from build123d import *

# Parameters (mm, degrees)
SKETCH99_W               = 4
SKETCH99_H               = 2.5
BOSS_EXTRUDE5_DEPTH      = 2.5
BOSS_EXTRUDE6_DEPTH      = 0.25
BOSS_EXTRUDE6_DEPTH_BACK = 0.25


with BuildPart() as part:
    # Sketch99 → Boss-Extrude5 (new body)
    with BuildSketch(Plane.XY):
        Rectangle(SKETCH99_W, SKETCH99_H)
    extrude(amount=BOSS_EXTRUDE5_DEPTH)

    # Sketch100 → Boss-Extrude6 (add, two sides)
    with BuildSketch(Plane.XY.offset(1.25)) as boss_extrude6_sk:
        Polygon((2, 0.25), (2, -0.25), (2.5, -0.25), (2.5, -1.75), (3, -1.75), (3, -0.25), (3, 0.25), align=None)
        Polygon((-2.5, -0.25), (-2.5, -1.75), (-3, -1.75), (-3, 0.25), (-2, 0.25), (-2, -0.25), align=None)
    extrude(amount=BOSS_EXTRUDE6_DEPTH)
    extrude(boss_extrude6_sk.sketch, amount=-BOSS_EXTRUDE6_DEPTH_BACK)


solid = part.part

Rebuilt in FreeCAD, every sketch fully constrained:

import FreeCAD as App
import Part
import Sketcher

V = App.Vector

doc = App.newDocument("Part")
params = doc.addObject("Spreadsheet::Sheet", "Params")
for row, (alias, value) in enumerate([
    ("sketch1_width", "4 mm"),
    ("sketch1_height", "2.5 mm"),
    ("pad1_length", "2.5 mm"),
    ("sketch2_width", "1 mm"),
    ("sketch2_height", "2 mm"),
    ("pad2_length", "0.25 mm"),
    ("pad2_length2", "0.25 mm"),
], start=1):
    params.set(f"A{row}", alias)
    params.set(f"B{row}", "=" + value)
    params.setAlias(f"B{row}", alias)

body = doc.addObject("PartDesign::Body", "Body")

# Sketch on XY plane
sketch1 = body.newObject("Sketcher::SketchObject", "Sketch")
sketch1.AttachmentSupport = (doc.getObject("XY_Plane"), [""])
sketch1.MapMode = "FlatFace"
sketch1.addGeometry(Part.LineSegment(V(-2, 1.25, 0), V(-2, -1.25, 0)), False)
sketch1.addGeometry(Part.LineSegment(V(-2, -1.25, 0), V(2, -1.25, 0)), False)
sketch1.addGeometry(Part.LineSegment(V(2, -1.25, 0), V(2, 1.25, 0)), False)
sketch1.addGeometry(Part.LineSegment(V(2, 1.25, 0), V(-2, 1.25, 0)), False)
sketch1.addConstraint(Sketcher.Constraint("Coincident", 0, 2, 1, 1))
sketch1.addConstraint(Sketcher.Constraint("Coincident", 1, 2, 2, 1))
sketch1.addConstraint(Sketcher.Constraint("Coincident", 2, 2, 3, 1))
sketch1.addConstraint(Sketcher.Constraint("Coincident", 3, 2, 0, 1))
sketch1.addConstraint(Sketcher.Constraint("Vertical", 0))
sketch1.addConstraint(Sketcher.Constraint("Horizontal", 1))
sketch1.addConstraint(Sketcher.Constraint("Vertical", 2))
sketch1.addConstraint(Sketcher.Constraint("Horizontal", 3))
sketch1.addConstraint(Sketcher.Constraint("Symmetric", 0, 2, 2, 2, -1, 1))
sketch1.addConstraint(Sketcher.Constraint("DistanceX", 1, 1, 1, 2, 4.0))
sketch1.addConstraint(Sketcher.Constraint("DistanceY", 0, 2, 0, 1, 2.5))
sketch1.setExpression("Constraints[9]", "Params.sketch1_width")
sketch1.setExpression("Constraints[10]", "Params.sketch1_height")
pad1 = body.newObject("PartDesign::Pad", "Pad")
pad1.Profile = sketch1
pad1.setExpression("Length", "Params.pad1_length")

# Sketch on XY plane
sketch2 = body.newObject("Sketcher::SketchObject", "Sketch001")
sketch2.AttachmentSupport = (doc.getObject("XY_Plane"), [""])
sketch2.MapMode = "FlatFace"
sketch2.AttachmentOffset = App.Placement(V(0, 0, 1.25), App.Rotation())
sketch2.addGeometry(Part.LineSegment(V(2, 0.25, 0), V(2, -0.25, 0)), False)
sketch2.addGeometry(Part.LineSegment(V(2, -0.25, 0), V(2.5, -0.25, 0)), False)
sketch2.addGeometry(Part.LineSegment(V(2.5, -0.25, 0), V(2.5, -1.75, 0)), False)
sketch2.addGeometry(Part.LineSegment(V(2.5, -1.75, 0), V(3, -1.75, 0)), False)
sketch2.addGeometry(Part.LineSegment(V(3, -1.75, 0), V(3, 0.25, 0)), False)
sketch2.addGeometry(Part.LineSegment(V(3, 0.25, 0), V(2, 0.25, 0)), False)
sketch2.addGeometry(Part.LineSegment(V(-2.5, -1.75, 0), V(-2.5, -0.25, 0)), False)
sketch2.addGeometry(Part.LineSegment(V(-2.5, -0.25, 0), V(-2, -0.25, 0)), False)
sketch2.addGeometry(Part.LineSegment(V(-2, -0.25, 0), V(-2, 0.25, 0)), False)
sketch2.addGeometry(Part.LineSegment(V(-2, 0.25, 0), V(-3, 0.25, 0)), False)
sketch2.addGeometry(Part.LineSegment(V(-3, 0.25, 0), V(-3, -1.75, 0)), False)
sketch2.addGeometry(Part.LineSegment(V(-3, -1.75, 0), V(-2.5, -1.75, 0)), False)
sketch2.addConstraint(Sketcher.Constraint("Coincident", 0, 2, 1, 1))
sketch2.addConstraint(Sketcher.Constraint("Coincident", 1, 2, 2, 1))
sketch2.addConstraint(Sketcher.Constraint("Coincident", 2, 2, 3, 1))
sketch2.addConstraint(Sketcher.Constraint("Coincident", 3, 2, 4, 1))
sketch2.addConstraint(Sketcher.Constraint("Coincident", 4, 2, 5, 1))
sketch2.addConstraint(Sketcher.Constraint("Coincident", 5, 2, 0, 1))
sketch2.addConstraint(Sketcher.Constraint("Coincident", 6, 2, 7, 1))
sketch2.addConstraint(Sketcher.Constraint("Coincident", 7, 2, 8, 1))
sketch2.addConstraint(Sketcher.Constraint("Coincident", 8, 2, 9, 1))
sketch2.addConstraint(Sketcher.Constraint("Coincident", 9, 2, 10, 1))
sketch2.addConstraint(Sketcher.Constraint("Coincident", 10, 2, 11, 1))
sketch2.addConstraint(Sketcher.Constraint("Coincident", 11, 2, 6, 1))
sketch2.addConstraint(Sketcher.Constraint("Vertical", 0))
sketch2.addConstraint(Sketcher.Constraint("Horizontal", 1))
sketch2.addConstraint(Sketcher.Constraint("Vertical", 2))
sketch2.addConstraint(Sketcher.Constraint("Horizontal", 3))
sketch2.addConstraint(Sketcher.Constraint("Vertical", 4))
sketch2.addConstraint(Sketcher.Constraint("Horizontal", 5))
sketch2.addConstraint(Sketcher.Constraint("Vertical", 6))
sketch2.addConstraint(Sketcher.Constraint("Horizontal", 7))
sketch2.addConstraint(Sketcher.Constraint("Vertical", 8))
sketch2.addConstraint(Sketcher.Constraint("Horizontal", 9))
sketch2.addConstraint(Sketcher.Constraint("Vertical", 10))
sketch2.addConstraint(Sketcher.Constraint("Horizontal", 11))
sketch2.addConstraint(Sketcher.Constraint("Symmetric", 5, 2, 7, 2, -1, 1))
sketch2.addConstraint(Sketcher.Constraint("Symmetric", 1, 2, 6, 2, -2))
sketch2.addConstraint(Sketcher.Constraint("Symmetric", 4, 2, 9, 2, -2))
sketch2.addConstraint(Sketcher.Constraint("Horizontal", 3, 2, 10, 2))
sketch2.addConstraint(Sketcher.Constraint("Equal", 1, 3))
sketch2.addConstraint(Sketcher.Constraint("Equal", 11, 0))
sketch2.addConstraint(Sketcher.Constraint("DistanceX", 5, 2, 5, 1, 1.0))
sketch2.addConstraint(Sketcher.Constraint("DistanceY", 4, 1, 4, 2, 2.0))
sketch2.addConstraint(Sketcher.Constraint("DistanceX", -1, 1, 0, 2, 2.0))
sketch2.setExpression("Constraints[30]", "Params.sketch2_width")
sketch2.setExpression("Constraints[31]", "Params.sketch2_height")
pad2 = body.newObject("PartDesign::Pad", "Pad001")
pad2.Profile = sketch2
pad2.Type = "TwoLengths"
pad2.setExpression("Length", "Params.pad2_length")
pad2.setExpression("Length2", "Params.pad2_length2")

doc.recompute()
